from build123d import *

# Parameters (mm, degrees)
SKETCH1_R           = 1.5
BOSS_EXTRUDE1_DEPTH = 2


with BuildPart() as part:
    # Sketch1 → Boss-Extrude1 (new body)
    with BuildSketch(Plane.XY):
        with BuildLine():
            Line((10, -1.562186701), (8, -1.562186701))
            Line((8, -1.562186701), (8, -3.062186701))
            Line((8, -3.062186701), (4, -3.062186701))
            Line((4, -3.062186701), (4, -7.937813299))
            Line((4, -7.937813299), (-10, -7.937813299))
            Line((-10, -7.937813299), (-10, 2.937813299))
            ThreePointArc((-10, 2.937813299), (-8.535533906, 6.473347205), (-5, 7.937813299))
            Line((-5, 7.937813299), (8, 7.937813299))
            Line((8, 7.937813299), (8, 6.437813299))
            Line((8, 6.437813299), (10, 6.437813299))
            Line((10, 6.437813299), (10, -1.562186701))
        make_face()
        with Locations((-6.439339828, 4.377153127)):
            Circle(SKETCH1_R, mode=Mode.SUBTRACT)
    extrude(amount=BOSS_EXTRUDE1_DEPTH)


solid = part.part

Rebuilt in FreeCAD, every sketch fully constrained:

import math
import FreeCAD as App
import Part
import Sketcher
Q = App.Units.Quantity

doc = App.newDocument("Part")
params = doc.addObject("Spreadsheet::Sheet", "Params")
for row, (alias, value) in enumerate([
    ("sketch1_diameter", "3 mm"),
    ("sketch1_radius", "5 mm"),
    ("sketch1_width", "2 mm"),
    ("sketch1_width2", "13 mm"),
    ("sketch1_width3", "14 mm"),
    ("pad1_length", "2 mm"),
], start=1):
    params.set(f"A{row}", alias)
    params.set(f"B{row}", "=" + value)
    params.setAlias(f"B{row}", alias)

body = doc.addObject("PartDesign::Body", "Body")

# Sketch on XY plane
sketch1 = body.newObject("Sketcher::SketchObject", "Sketch")
sketch1.AttachmentSupport = (doc.getObject("XY_Plane"), [""])
sketch1.MapMode = "FlatFace"
sketch1.addGeometry(Part.LineSegment(App.Vector(8, -1.6, 0), App.Vector(10, -1.6, 0)), False)
sketch1.addGeometry(Part.LineSegment(App.Vector(10, -1.6, 0), App.Vector(10, 6.4, 0)), False)
sketch1.addGeometry(Part.LineSegment(App.Vector(10, 6.4, 0), App.Vector(8, 6.4, 0)), False)
sketch1.addGeometry(Part.LineSegment(App.Vector(8, 6.4, 0), App.Vector(8, 7.9, 0)), False)
sketch1.addGeometry(Part.LineSegment(App.Vector(8, 7.9, 0), App.Vector(-5, 7.9, 0)), False)
sketch1.addGeometry(Part.ArcOfCircle(Part.Circle(App.Vector(-5, 2.9, 0), App.Vector(0, 0, 1), 5), math.radians(90), math.radians(180)), False)
sketch1.addGeometry(Part.LineSegment(App.Vector(-10, 2.9, 0), App.Vector(-10, -7.9, 0)), False)
sketch1.addGeometry(Part.LineSegment(App.Vector(-10, -7.9, 0), App.Vector(4, -7.9, 0)), False)
sketch1.addGeometry(Part.LineSegment(App.Vector(4, -7.9, 0), App.Vector(4, -3.1, 0)), False)
sketch1.addGeometry(Part.LineSegment(App.Vector(4, -3.1, 0), App.Vector(8, -3.1, 0)), False)
sketch1.addGeometry(Part.LineSegment(App.Vector(8, -3.1, 0), App.Vector(8, -1.6, 0)), False)
sketch1.addGeometry(Part.Circle(App.Vector(-6.4, 4.4, 0), App.Vector(0, 0, 1), 1.5), False)
sketch1.addConstraint(Sketcher.Constraint("Coincident", 0, 2, 1, 1))
sketch1.addConstraint(Sketcher.Constraint("Coincident", 1, 2, 2, 1))
sketch1.addConstraint(Sketcher.Constraint("Coincident", 2, 2, 3, 1))
sketch1.addConstraint(Sketcher.Constraint("Coincident", 3, 2, 4, 1))
sketch1.addConstraint(Sketcher.Constraint("Tangent", 4, 2, 5, 1))
sketch1.addConstraint(Sketcher.Constraint("Tangent", 5, 2, 6, 1))
sketch1.addConstraint(Sketcher.Constraint("Coincident", 6, 2, 7, 1))
sketch1.addConstraint(Sketcher.Constraint("Coincident", 7, 2, 8, 1))
sketch1.addConstraint(Sketcher.Constraint("Coincident", 8, 2, 9, 1))
sketch1.addConstraint(Sketcher.Constraint("Coincident", 9, 2, 10, 1))
sketch1.addConstraint(Sketcher.Constraint("Coincident", 10, 2, 0, 1))
sketch1.addConstraint(Sketcher.Constraint("Horizontal", 0))
sketch1.addConstraint(Sketcher.Constraint("Vertical", 1))
sketch1.addConstraint(Sketcher.Constraint("Horizontal", 2))
sketch1.addConstraint(Sketcher.Constraint("Vertical", 3))
sketch1.addConstraint(Sketcher.Constraint("Horizontal", 4))
sketch1.addConstraint(Sketcher.Constraint("Vertical", 6))
sketch1.addConstraint(Sketcher.Constraint("Horizontal", 7))
sketch1.addConstraint(Sketcher.Constraint("Vertical", 8))
sketch1.addConstraint(Sketcher.Constraint("Horizontal", 9))
sketch1.addConstraint(Sketcher.Constraint("Vertical", 10))
sketch1.addConstraint(Sketcher.Constraint("Vertical", 3, 2, 9, 2))
sketch1.addConstraint(Sketcher.Constraint("Equal", 3, 10))
sketch1.addConstraint(Sketcher.Constraint("Diameter", 11, Q("3 mm")))
sketch1.addConstraint(Sketcher.Constraint("Radius", 5, Q("5 mm")))
sketch1.addConstraint(Sketcher.Constraint("DistanceX", 0, 1, 0, 2, Q("2 mm")))
sketch1.addConstraint(Sketcher.Constraint("DistanceX", 4, 2, 4, 1, Q("13 mm")))
sketch1.addConstraint(Sketcher.Constraint("DistanceX", 7, 1, 7, 2, Q("14 mm")))
sketch1.addConstraint(Sketcher.Constraint("DistanceY", 1, 1, 1, 2, Q("8 mm")))
sketch1.addConstraint(Sketcher.Constraint("DistanceY", 3, 1, 3, 2, Q("1.5 mm")))
sketch1.addConstraint(Sketcher.Constraint("DistanceX", 5, 3, -1, 1, Q("5 mm")))
sketch1.addConstraint(Sketcher.Constraint("DistanceY", 6, 2, 6, 1, Q("10.875627 mm")))
sketch1.addConstraint(Sketcher.Constraint("DistanceX", 11, 3, -1, 1, Q("6.43934 mm")))
sketch1.addConstraint(Sketcher.Constraint("DistanceY", 5, 3, 11, 3, Q("1.43934 mm")))
sketch1.addConstraint(Sketcher.Constraint("DistanceY", -1, 1, 5, 3, Q("2.937813 mm")))
sketch1.setExpression("Constraints[23]", "Params.sketch1_diameter")
sketch1.setExpression("Constraints[24]", "Params.sketch1_radius")
sketch1.setExpression("Constraints[25]", "Params.sketch1_width")
sketch1.setExpression("Constraints[26]", "Params.sketch1_width2")
sketch1.setExpression("Constraints[27]", "Params.sketch1_width3")
pad1 = body.newObject("PartDesign::Pad", "Pad")
pad1.Profile = sketch1
pad1.setExpression("Length", "Params.pad1_length")

doc.recompute()
